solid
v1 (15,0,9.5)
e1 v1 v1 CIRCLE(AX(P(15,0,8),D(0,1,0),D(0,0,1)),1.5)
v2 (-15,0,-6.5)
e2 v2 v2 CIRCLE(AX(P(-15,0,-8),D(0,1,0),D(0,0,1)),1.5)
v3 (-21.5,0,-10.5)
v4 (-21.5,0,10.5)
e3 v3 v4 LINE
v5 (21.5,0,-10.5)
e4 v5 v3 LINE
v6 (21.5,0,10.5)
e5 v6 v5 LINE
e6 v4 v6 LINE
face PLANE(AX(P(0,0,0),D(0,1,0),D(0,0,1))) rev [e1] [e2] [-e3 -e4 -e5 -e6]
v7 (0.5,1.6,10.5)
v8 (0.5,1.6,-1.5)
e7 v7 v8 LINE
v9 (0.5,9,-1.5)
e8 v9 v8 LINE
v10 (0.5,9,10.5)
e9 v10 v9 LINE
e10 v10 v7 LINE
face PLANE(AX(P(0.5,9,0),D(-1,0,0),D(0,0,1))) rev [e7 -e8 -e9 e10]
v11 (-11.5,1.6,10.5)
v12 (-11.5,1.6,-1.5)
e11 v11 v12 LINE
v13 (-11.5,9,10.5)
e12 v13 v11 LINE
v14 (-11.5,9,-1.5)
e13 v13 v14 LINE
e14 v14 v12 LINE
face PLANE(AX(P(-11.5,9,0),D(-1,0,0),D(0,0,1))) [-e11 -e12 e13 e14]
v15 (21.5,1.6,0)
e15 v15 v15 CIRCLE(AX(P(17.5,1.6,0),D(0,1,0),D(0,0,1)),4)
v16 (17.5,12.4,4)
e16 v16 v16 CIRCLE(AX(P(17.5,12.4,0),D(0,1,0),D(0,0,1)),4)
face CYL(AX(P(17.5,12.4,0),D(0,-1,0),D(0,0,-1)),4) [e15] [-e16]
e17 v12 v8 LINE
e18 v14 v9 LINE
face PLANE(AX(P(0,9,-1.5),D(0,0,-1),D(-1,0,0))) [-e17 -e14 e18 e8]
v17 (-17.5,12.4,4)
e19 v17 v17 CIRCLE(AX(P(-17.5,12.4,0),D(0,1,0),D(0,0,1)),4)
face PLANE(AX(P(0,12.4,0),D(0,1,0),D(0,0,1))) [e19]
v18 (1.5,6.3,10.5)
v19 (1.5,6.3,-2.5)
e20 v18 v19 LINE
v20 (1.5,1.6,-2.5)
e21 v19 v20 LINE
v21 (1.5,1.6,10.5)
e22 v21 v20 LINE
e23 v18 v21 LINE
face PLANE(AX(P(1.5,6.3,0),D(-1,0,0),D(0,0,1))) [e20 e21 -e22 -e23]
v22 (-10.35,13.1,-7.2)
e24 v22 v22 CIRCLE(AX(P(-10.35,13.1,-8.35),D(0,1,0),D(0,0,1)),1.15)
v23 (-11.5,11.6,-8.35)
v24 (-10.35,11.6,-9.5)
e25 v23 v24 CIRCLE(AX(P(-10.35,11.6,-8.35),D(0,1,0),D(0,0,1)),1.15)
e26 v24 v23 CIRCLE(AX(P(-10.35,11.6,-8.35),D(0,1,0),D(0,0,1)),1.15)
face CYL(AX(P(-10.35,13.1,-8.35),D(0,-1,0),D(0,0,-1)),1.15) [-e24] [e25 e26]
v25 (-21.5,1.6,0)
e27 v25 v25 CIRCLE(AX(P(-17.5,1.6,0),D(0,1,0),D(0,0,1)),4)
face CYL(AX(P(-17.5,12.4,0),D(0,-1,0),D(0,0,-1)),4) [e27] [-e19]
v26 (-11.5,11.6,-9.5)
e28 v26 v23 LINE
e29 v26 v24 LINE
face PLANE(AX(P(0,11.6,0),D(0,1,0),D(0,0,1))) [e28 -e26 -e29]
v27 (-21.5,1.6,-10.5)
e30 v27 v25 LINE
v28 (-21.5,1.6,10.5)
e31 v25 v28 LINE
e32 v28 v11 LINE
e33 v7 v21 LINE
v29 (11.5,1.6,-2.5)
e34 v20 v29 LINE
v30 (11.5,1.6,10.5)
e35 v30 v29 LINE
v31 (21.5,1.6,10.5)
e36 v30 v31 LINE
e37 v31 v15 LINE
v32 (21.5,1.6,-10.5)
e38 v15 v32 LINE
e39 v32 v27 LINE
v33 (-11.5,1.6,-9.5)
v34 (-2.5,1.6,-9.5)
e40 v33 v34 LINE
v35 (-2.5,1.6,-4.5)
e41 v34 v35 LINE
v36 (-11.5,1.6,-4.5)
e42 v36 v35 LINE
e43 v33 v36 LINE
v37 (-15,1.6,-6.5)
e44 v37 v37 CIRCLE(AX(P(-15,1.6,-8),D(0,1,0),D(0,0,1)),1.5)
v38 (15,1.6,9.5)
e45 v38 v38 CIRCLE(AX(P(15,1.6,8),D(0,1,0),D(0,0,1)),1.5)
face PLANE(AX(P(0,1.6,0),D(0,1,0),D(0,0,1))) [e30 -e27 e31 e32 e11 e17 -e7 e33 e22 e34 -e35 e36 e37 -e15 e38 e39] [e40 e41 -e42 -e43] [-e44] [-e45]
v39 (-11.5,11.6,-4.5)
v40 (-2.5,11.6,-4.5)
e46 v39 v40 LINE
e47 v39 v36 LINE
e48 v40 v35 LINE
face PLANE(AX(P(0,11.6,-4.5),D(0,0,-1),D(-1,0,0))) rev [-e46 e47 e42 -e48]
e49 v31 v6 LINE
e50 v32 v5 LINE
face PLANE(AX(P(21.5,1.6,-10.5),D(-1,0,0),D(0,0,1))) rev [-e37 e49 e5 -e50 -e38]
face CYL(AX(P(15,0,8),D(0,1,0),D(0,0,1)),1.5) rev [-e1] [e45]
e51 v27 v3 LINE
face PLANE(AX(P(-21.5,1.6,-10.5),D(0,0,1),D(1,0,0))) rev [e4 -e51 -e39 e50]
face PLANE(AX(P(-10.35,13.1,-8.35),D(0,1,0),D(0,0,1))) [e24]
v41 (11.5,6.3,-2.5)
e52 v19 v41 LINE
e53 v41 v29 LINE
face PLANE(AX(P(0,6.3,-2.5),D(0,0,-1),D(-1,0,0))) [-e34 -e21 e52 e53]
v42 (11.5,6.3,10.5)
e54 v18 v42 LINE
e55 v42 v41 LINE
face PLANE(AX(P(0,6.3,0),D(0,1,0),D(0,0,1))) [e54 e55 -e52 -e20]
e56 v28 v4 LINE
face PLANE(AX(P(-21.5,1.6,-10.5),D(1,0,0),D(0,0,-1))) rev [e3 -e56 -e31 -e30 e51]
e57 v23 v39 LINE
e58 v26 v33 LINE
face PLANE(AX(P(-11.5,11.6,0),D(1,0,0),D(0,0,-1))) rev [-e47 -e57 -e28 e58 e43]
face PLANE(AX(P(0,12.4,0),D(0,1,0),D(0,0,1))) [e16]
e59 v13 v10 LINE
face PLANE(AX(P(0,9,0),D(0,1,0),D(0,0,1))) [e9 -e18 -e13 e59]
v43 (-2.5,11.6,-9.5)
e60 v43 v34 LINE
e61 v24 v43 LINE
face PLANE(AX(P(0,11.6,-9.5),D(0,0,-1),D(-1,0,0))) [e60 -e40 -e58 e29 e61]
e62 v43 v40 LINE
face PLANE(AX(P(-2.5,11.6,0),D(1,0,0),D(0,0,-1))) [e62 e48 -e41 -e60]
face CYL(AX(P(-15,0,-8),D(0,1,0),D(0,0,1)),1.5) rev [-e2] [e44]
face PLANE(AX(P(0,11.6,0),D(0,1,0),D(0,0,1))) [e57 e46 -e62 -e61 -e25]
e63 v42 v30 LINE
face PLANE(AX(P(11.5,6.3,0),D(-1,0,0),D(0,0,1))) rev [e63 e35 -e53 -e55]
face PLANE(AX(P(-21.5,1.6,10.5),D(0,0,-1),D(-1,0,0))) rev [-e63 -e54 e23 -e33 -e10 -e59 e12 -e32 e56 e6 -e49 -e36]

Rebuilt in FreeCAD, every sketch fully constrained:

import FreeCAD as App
import Part
import Sketcher
from FreeCAD import Vector
Q = App.Units.Quantity

doc = App.newDocument("Part")
params = doc.addObject("Spreadsheet::Sheet", "Params")
for row, (alias, value) in enumerate([
    ("sketch1_width", "43 mm"),
    ("sketch1_height", "21 mm"),
    ("pad1_length", "1.6 mm"),
    ("sketch2_diameter", "3 mm"),
    ("sketch3_diameter", "8 mm"),
    ("pad2_length", "10.8 mm"),
    ("sketch4_width", "12 mm"),
    ("pad3_length", "7.4 mm"),
    ("sketch5_width", "10 mm"),
    ("sketch5_height", "13 mm"),
    ("pad4_length", "4.7 mm"),
    ("sketch6_width", "9 mm"),
    ("sketch6_height", "5 mm"),
    ("pad5_length", "10 mm"),
    ("sketch7_diameter", "2.3 mm"),
    ("pad6_length", "1.5 mm"),
], start=1):
    params.set(f"A{row}", alias)
    params.set(f"B{row}", "=" + value)
    params.setAlias(f"B{row}", alias)

body = doc.addObject("PartDesign::Body", "Body")

sketch1 = doc.addObject("Sketcher::SketchObject", "Sketch")
body.addObject(sketch1)
sketch1.AttachmentSupport = (doc.XZ_Plane, [""])
sketch1.MapMode = "FlatFace"
sketch1.addGeometry([
    Part.LineSegment(Vector(-21.5, -10.5, 0), Vector(-21.5, 10.5, 0)),
    Part.LineSegment(Vector(-21.5, 10.5, 0), Vector(21.5, 10.5, 0)),
    Part.LineSegment(Vector(21.5, 10.5, 0), Vector(21.5, -10.5, 0)),
    Part.LineSegment(Vector(21.5, -10.5, 0), Vector(-21.5, -10.5, 0)),
], False)
sketch1.addConstraint([
    Sketcher.Constraint("Coincident", 0, 2, 1, 1),
    Sketcher.Constraint("Coincident", 1, 2, 2, 1),
    Sketcher.Constraint("Coincident", 2, 2, 3, 1),
    Sketcher.Constraint("Coincident", 3, 2, 0, 1),
    Sketcher.Constraint("Vertical", 0),
    Sketcher.Constraint("Horizontal", 1),
    Sketcher.Constraint("Vertical", 2),
    Sketcher.Constraint("Horizontal", 3),
    Sketcher.Constraint("Symmetric", 0, 2, 2, 2, -1, 1),
    Sketcher.Constraint("DistanceX", 1, 1, 1, 2, Q("43 mm")),
    Sketcher.Constraint("DistanceY", 0, 1, 0, 2, Q("21 mm")),
])
sketch1.setExpression("Constraints[9]", "Params.sketch1_width")
sketch1.setExpression("Constraints[10]", "Params.sketch1_height")
pad1 = doc.addObject("PartDesign::Pad", "Pad")
body.addObject(pad1)
pad1.Profile = sketch1
pad1.setExpression("Length", "Params.pad1_length")
pad1.Reversed = True

sketch2 = doc.addObject("Sketcher::SketchObject", "Sketch001")
body.addObject(sketch2)
sketch2.AttachmentSupport = (doc.XZ_Plane, [""])
sketch2.MapMode = "FlatFace"
sketch2.AttachmentOffset = App.Placement(Vector(0, 0, -1.6), App.Rotation())
sketch2.addGeometry([
    Part.Circle(Vector(-15, -8, 0), Vector(0, 0, 1), 1.5),
    Part.Circle(Vector(15, 8, 0), Vector(0, 0, 1), 1.5),
], False)
sketch2.addConstraint([
    Sketcher.Constraint("Equal", 0, 1),
    Sketcher.Constraint("Symmetric", 0, 3, 1, 3, -1, 1),
    Sketcher.Constraint("Diameter", 0, Q("3 mm")),
    Sketcher.Constraint("DistanceX", 0, 3, -1, 1, Q("15 mm")),
    Sketcher.Constraint("DistanceY", 0, 3, -1, 1, Q("8 mm")),
])
sketch2.setExpression("Constraints[2]", "Params.sketch2_diameter")
pocket1 = doc.addObject("PartDesign::Pocket", "Pocket")
body.addObject(pocket1)
pocket1.Profile = sketch2
pocket1.Type = "ThroughAll"
pocket1.Reversed = True

sketch3 = doc.addObject("Sketcher::SketchObject", "Sketch002")
body.addObject(sketch3)
sketch3.AttachmentSupport = (doc.XZ_Plane, [""])
sketch3.MapMode = "FlatFace"
sketch3.AttachmentOffset = App.Placement(Vector(0, 0, -1.6), App.Rotation())
sketch3.addGeometry([
    Part.Circle(Vector(-17.5, 0, 0), Vector(0, 0, 1), 4),
    Part.Circle(Vector(17.5, 0, 0), Vector(0, 0, 1), 4),
], False)
sketch3.addConstraint([
    Sketcher.Constraint("Equal", 0, 1),
    Sketcher.Constraint("Symmetric", 0, 3, 1, 3, -1, 1),
    Sketcher.Constraint("PointOnObject", 0, 3, -1),
    Sketcher.Constraint("Diameter", 0, Q("8 mm")),
    Sketcher.Constraint("DistanceX", 0, 3, 1, 3, Q("35 mm")),
])
sketch3.setExpression("Constraints[3]", "Params.sketch3_diameter")
pad2 = doc.addObject("PartDesign::Pad", "Pad001")
body.addObject(pad2)
pad2.Profile = sketch3
pad2.setExpression("Length", "Params.pad2_length")
pad2.Reversed = True

sketch4 = doc.addObject("Sketcher::SketchObject", "Sketch003")
body.addObject(sketch4)
sketch4.AttachmentSupport = (doc.XZ_Plane, [""])
sketch4.MapMode = "FlatFace"
sketch4.AttachmentOffset = App.Placement(Vector(0, 0, -1.6), App.Rotation())
sketch4.addGeometry([
    Part.LineSegment(Vector(-11.5, -1.5, 0), Vector(-11.5, 10.5, 0)),
    Part.LineSegment(Vector(-11.5, 10.5, 0), Vector(0.5, 10.5, 0)),
    Part.LineSegment(Vector(0.5, 10.5, 0), Vector(0.5, -1.5, 0)),
    Part.LineSegment(Vector(0.5, -1.5, 0), Vector(-11.5, -1.5, 0)),
], False)
sketch4.addConstraint([
    Sketcher.Constraint("Coincident", 0, 2, 1, 1),
    Sketcher.Constraint("Coincident", 1, 2, 2, 1),
    Sketcher.Constraint("Coincident", 2, 2, 3, 1),
    Sketcher.Constraint("Coincident", 3, 2, 0, 1),
    Sketcher.Constraint("Vertical", 0),
    Sketcher.Constraint("Horizontal", 1),
    Sketcher.Constraint("Vertical", 2),
    Sketcher.Constraint("Horizontal", 3),
    Sketcher.Constraint("Equal", 3, 0),
    Sketcher.Constraint("DistanceX", 1, 1, 1, 2, Q("12 mm")),
    Sketcher.Constraint("DistanceX", 0, 2, -1, 1, Q("11.5 mm")),
    Sketcher.Constraint("DistanceY", -1, 1, 0, 2, Q("10.5 mm")),
])
sketch4.setExpression("Constraints[9]", "Params.sketch4_width")
pad3 = doc.addObject("PartDesign::Pad", "Pad002")
body.addObject(pad3)
pad3.Profile = sketch4
pad3.setExpression("Length", "Params.pad3_length")
pad3.Reversed = True

sketch5 = doc.addObject("Sketcher::SketchObject", "Sketch004")
body.addObject(sketch5)
sketch5.AttachmentSupport = (doc.XZ_Plane, [""])
sketch5.MapMode = "FlatFace"
sketch5.AttachmentOffset = App.Placement(Vector(0, 0, -1.6), App.Rotation())
sketch5.addGeometry([
    Part.LineSegment(Vector(1.5, -2.5, 0), Vector(1.5, 10.5, 0)),
    Part.LineSegment(Vector(1.5, 10.5, 0), Vector(11.5, 10.5, 0)),
    Part.LineSegment(Vector(11.5, 10.5, 0), Vector(11.5, -2.5, 0)),
    Part.LineSegment(Vector(11.5, -2.5, 0), Vector(1.5, -2.5, 0)),
], False)
sketch5.addConstraint([
    Sketcher.Constraint("Coincident", 0, 2, 1, 1),
    Sketcher.Constraint("Coincident", 1, 2, 2, 1),
    Sketcher.Constraint("Coincident", 2, 2, 3, 1),
    Sketcher.Constraint("Coincident", 3, 2, 0, 1),
    Sketcher.Constraint("Vertical", 0),
    Sketcher.Constraint("Horizontal", 1),
    Sketcher.Constraint("Vertical", 2),
    Sketcher.Constraint("Horizontal", 3),
    Sketcher.Constraint("DistanceX", 1, 1, 1, 2, Q("10 mm")),
    Sketcher.Constraint("DistanceY", 0, 1, 0, 2, Q("13 mm")),
    Sketcher.Constraint("DistanceX", -1, 1, 0, 2, Q("1.5 mm")),
    Sketcher.Constraint("DistanceY", -1, 1, 0, 2, Q("10.5 mm")),
])
sketch5.setExpression("Constraints[8]", "Params.sketch5_width")
sketch5.setExpression("Constraints[9]", "Params.sketch5_height")
pad4 = doc.addObject("PartDesign::Pad", "Pad003")
body.addObject(pad4)
pad4.Profile = sketch5
pad4.setExpression("Length", "Params.pad4_length")
pad4.Reversed = True

sketch6 = doc.addObject("Sketcher::SketchObject", "Sketch005")
body.addObject(sketch6)
sketch6.AttachmentSupport = (doc.XZ_Plane, [""])
sketch6.MapMode = "FlatFace"
sketch6.AttachmentOffset = App.Placement(Vector(0, 0, -1.6), App.Rotation())
sketch6.addGeometry([
    Part.LineSegment(Vector(-11.5, -9.5, 0), Vector(-11.5, -4.5, 0)),
    Part.LineSegment(Vector(-11.5, -4.5, 0), Vector(-2.5, -4.5, 0)),
    Part.LineSegment(Vector(-2.5, -4.5, 0), Vector(-2.5, -9.5, 0)),
    Part.LineSegment(Vector(-2.5, -9.5, 0), Vector(-11.5, -9.5, 0)),
], False)
sketch6.addConstraint([
    Sketcher.Constraint("Coincident", 0, 2, 1, 1),
    Sketcher.Constraint("Coincident", 1, 2, 2, 1),
    Sketcher.Constraint("Coincident", 2, 2, 3, 1),
    Sketcher.Constraint("Coincident", 3, 2, 0, 1),
    Sketcher.Constraint("Vertical", 0),
    Sketcher.Constraint("Horizontal", 1),
    Sketcher.Constraint("Vertical", 2),
    Sketcher.Constraint("Horizontal", 3),
    Sketcher.Constraint("DistanceX", 1, 1, 1, 2, Q("9 mm")),
    Sketcher.Constraint("DistanceY", 0, 1, 0, 2, Q("5 mm")),
    Sketcher.Constraint("DistanceX", 0, 2, -1, 1, Q("11.5 mm")),
    Sketcher.Constraint("DistanceY", 0, 2, -1, 1, Q("4.5 mm")),
])
sketch6.setExpression("Constraints[8]", "Params.sketch6_width")
sketch6.setExpression("Constraints[9]", "Params.sketch6_height")
pad5 = doc.addObject("PartDesign::Pad", "Pad004")
body.addObject(pad5)
pad5.Profile = sketch6
pad5.setExpression("Length", "Params.pad5_length")
pad5.Reversed = True

sketch7 = doc.addObject("Sketcher::SketchObject", "Sketch006")
body.addObject(sketch7)
sketch7.AttachmentSupport = (doc.XZ_Plane, [""])
sketch7.MapMode = "FlatFace"
sketch7.AttachmentOffset = App.Placement(Vector(0, 0, -11.6), App.Rotation())
sketch7.addGeometry(Part.Circle(Vector(-10.35, -8.35, 0), Vector(0, 0, 1), 1.15), False)
sketch7.addConstraint([
    Sketcher.Constraint("Diameter", 0, Q("2.3 mm")),
    Sketcher.Constraint("DistanceX", 0, 3, -1, 1, Q("10.35 mm")),
    Sketcher.Constraint("DistanceY", 0, 3, -1, 1, Q("8.35 mm")),
])
sketch7.setExpression("Constraints[0]", "Params.sketch7_diameter")
pad6 = doc.addObject("PartDesign::Pad", "Pad005")
body.addObject(pad6)
pad6.Profile = sketch7
pad6.setExpression("Length", "Params.pad6_length")
pad6.Reversed = True

doc.recompute()
